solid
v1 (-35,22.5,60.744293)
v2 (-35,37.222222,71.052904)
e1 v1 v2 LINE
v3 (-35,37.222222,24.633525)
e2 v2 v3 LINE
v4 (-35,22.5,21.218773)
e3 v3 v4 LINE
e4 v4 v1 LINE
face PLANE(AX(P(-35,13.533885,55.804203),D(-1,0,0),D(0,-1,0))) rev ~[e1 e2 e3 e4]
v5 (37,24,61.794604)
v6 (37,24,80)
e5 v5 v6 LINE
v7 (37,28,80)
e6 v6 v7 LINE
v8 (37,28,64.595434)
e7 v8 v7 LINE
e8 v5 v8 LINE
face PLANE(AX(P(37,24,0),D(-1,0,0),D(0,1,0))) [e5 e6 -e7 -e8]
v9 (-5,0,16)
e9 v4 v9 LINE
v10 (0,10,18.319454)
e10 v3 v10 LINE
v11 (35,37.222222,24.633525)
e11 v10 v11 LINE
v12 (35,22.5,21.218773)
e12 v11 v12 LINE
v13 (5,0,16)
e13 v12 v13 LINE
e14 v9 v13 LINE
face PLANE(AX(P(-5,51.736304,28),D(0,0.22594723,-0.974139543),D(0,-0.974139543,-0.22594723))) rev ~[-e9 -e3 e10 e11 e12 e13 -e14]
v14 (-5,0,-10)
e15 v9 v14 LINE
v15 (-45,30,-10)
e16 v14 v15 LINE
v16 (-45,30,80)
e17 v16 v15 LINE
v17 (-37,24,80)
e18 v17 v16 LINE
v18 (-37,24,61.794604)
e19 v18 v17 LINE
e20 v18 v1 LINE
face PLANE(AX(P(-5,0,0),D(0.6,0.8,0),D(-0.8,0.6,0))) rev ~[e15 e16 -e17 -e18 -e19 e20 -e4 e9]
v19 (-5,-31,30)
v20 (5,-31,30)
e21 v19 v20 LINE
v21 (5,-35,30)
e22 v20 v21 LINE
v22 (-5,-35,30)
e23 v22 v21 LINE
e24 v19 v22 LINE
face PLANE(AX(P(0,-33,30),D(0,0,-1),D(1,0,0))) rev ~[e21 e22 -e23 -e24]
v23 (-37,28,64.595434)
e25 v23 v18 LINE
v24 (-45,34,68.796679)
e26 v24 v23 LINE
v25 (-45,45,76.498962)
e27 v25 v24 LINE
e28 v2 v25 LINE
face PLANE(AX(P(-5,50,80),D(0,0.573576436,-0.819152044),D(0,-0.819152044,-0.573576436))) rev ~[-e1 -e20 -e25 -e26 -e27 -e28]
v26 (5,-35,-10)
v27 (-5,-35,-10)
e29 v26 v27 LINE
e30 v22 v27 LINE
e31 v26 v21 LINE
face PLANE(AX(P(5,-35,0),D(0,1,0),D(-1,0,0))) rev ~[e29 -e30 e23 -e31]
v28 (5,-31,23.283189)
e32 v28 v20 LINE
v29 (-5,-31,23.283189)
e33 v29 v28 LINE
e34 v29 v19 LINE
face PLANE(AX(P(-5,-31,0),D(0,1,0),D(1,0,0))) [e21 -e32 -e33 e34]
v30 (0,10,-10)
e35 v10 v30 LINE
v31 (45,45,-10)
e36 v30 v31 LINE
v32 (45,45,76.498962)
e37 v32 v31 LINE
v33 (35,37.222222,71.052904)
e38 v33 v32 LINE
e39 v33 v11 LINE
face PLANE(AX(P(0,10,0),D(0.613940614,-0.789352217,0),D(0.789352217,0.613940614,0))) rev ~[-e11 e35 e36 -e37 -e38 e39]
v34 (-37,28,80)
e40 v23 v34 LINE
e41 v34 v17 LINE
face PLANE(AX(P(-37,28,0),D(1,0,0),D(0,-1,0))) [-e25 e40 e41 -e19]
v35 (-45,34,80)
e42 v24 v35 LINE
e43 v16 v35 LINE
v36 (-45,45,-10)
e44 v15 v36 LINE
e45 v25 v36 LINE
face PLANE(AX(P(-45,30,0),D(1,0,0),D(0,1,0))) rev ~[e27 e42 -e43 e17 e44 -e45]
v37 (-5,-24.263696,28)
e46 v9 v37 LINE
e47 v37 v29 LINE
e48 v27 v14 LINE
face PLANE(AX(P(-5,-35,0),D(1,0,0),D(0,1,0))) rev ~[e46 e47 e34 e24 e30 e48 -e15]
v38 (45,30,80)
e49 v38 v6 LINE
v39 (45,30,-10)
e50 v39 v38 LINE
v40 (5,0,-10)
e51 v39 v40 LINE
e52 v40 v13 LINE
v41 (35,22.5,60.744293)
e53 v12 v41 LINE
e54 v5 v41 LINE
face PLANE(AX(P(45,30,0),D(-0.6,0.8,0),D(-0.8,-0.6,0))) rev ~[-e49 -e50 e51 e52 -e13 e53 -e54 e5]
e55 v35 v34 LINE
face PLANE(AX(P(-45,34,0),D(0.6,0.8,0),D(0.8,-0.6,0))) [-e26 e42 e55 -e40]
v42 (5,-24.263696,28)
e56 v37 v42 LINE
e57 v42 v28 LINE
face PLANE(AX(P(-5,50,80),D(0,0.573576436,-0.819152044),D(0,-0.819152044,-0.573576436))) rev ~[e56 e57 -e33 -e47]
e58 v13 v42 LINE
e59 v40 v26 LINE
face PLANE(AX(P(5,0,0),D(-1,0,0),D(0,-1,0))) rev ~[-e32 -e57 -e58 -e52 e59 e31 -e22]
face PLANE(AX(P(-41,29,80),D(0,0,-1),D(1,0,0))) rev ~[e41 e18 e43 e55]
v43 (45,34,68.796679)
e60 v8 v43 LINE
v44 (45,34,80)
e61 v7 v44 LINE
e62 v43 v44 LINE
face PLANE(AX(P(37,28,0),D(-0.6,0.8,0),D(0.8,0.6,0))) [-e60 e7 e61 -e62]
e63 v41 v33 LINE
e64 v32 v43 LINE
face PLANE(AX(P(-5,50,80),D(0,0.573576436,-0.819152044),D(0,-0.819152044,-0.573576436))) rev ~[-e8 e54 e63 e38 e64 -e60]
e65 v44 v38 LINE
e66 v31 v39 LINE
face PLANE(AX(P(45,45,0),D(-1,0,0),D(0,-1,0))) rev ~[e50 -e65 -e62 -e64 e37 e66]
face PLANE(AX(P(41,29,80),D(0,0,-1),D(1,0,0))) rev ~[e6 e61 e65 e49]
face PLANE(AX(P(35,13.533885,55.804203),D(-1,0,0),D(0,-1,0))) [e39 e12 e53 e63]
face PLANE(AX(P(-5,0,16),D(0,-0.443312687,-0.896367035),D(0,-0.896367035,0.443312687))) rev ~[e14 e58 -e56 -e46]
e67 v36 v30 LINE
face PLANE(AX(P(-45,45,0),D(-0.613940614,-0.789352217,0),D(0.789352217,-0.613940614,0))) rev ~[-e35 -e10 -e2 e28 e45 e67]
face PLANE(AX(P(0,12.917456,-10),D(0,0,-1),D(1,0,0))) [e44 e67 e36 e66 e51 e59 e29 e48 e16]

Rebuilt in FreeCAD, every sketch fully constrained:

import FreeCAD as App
import Part
import Sketcher

V = App.Vector
Q = App.Units.Quantity

doc = App.newDocument("Part")
params = doc.addObject("Spreadsheet::Sheet", "Params")
for row, (alias, value) in enumerate([
    ("sketch1_width", "10 mm"),
    ("sketch1_height", "35 mm"),
    ("sketch1_height2", "15 mm"),
    ("sketch1_length", "50 mm"),
    ("pad1_length", "80 mm"),
    ("sketch2_width", "85 mm"),
    ("sketch3_width", "76 mm"),
    ("sketch3_height", "60 mm"),
    ("pocket2_length", "40 mm"),
    ("pocket2_length2", "30 mm"),
    ("sketch4_width", "10 mm"),
    ("sketch4_height", "4 mm"),
    ("pad2_length", "30 mm"),
    ("sketch5_height", "4 mm"),
    ("sketch5_length", "10 mm"),
    ("pad3_length", "80 mm"),
    ("sketch6_width", "10 mm"),
    ("sketch6_height", "35 mm"),
    ("sketch6_height2", "15 mm"),
    ("sketch6_length", "50 mm"),
    ("pad4_length", "10 mm"),
], start=1):
    params.set(f"A{row}", alias)
    params.set(f"B{row}", "=" + value)
    params.setAlias(f"B{row}", alias)

body = doc.addObject("PartDesign::Body", "Body")

# Sketch on XY plane
sketch1 = doc.addObject("Sketcher::SketchObject", "Sketch")
body.addObject(sketch1)
sketch1.AttachmentSupport = (doc.XY_Plane, [""])
sketch1.MapMode = "FlatFace"
sketch1.addGeometry([
    Part.LineSegment(V(-5, 0, 0), V(-5, -35, 0)),  # 0
    Part.LineSegment(V(-5, -35, 0), V(5, -35, 0)),  # 1
    Part.LineSegment(V(5, -35, 0), V(5, 0, 0)),  # 2
    Part.LineSegment(V(5, 0, 0), V(45, 30, 0)),  # 3
    Part.LineSegment(V(45, 30, 0), V(45, 45, 0)),  # 4
    Part.LineSegment(V(45, 45, 0), V(0, 10, 0)),  # 5
    Part.LineSegment(V(0, 10, 0), V(-45, 45, 0)),  # 6
    Part.LineSegment(V(-45, 45, 0), V(-45, 30, 0)),  # 7
    Part.LineSegment(V(-45, 30, 0), V(-5, 0, 0)),  # 8
], False)
sketch1.addConstraint([
    Sketcher.Constraint("Coincident", 0, 2, 1, 1),
    Sketcher.Constraint("Coincident", 1, 2, 2, 1),
    Sketcher.Constraint("Coincident", 2, 2, 3, 1),
    Sketcher.Constraint("Coincident", 3, 2, 4, 1),
    Sketcher.Constraint("Coincident", 4, 2, 5, 1),
    Sketcher.Constraint("Coincident", 5, 2, 6, 1),
    Sketcher.Constraint("Coincident", 6, 2, 7, 1),
    Sketcher.Constraint("Coincident", 7, 2, 8, 1),
    Sketcher.Constraint("Coincident", 8, 2, 0, 1),
    Sketcher.Constraint("Vertical", 0),
    Sketcher.Constraint("Horizontal", 1),
    Sketcher.Constraint("Vertical", 2),
    Sketcher.Constraint("Vertical", 4),
    Sketcher.Constraint("Vertical", 7),
    Sketcher.Constraint("Symmetric", 2, 2, 8, 2, -1, 1),
    Sketcher.Constraint("Symmetric", 4, 2, 6, 2, -2),
    Sketcher.Constraint("PointOnObject", 2, 2, -1),
    Sketcher.Constraint("PointOnObject", 5, 2, -2),
    Sketcher.Constraint("Horizontal", 3, 2, 7, 2),
    Sketcher.Constraint("DistanceX", 1, 1, 1, 2, 10.0),
    Sketcher.Constraint("DistanceY", 0, 2, 0, 1, 35.0),
    Sketcher.Constraint("DistanceY", 4, 1, 4, 2, 15.0),
    Sketcher.Constraint("Distance", 3, 50.0),
    Sketcher.Constraint("DistanceX", -1, 1, 3, 2, 45.0),
    Sketcher.Constraint("DistanceY", -1, 1, 5, 2, 10.0),
])
sketch1.setExpression("Constraints[19]", "Params.sketch1_width")
sketch1.setExpression("Constraints[20]", "Params.sketch1_height")
sketch1.setExpression("Constraints[21]", "Params.sketch1_height2")
sketch1.setExpression("Constraints[22]", "Params.sketch1_length")
pad1 = doc.addObject("PartDesign::Pad", "Pad")
body.addObject(pad1)
pad1.Profile = sketch1
pad1.setExpression("Length", "Params.pad1_length")

# Sketch on YZ plane
sketch2 = doc.addObject("Sketcher::SketchObject", "Sketch001")
body.addObject(sketch2)
sketch2.AttachmentSupport = (doc.YZ_Plane, [""])
sketch2.MapMode = "FlatFace"
sketch2.AttachmentOffset = App.Placement(V(0, 0, -5), App.Rotation())
sketch2.addGeometry([
    Part.LineSegment(V(-35, 20, 0), V(-35, 80, 0)),
    Part.LineSegment(V(-35, 80, 0), V(50, 80, 0)),
    Part.LineSegment(V(50, 80, 0), V(-35, 20, 0)),
], False)
sketch2.addConstraint([
    Sketcher.Constraint("Coincident", 0, 2, 1, 1),
    Sketcher.Constraint("Coincident", 1, 2, 2, 1),
    Sketcher.Constraint("Coincident", 2, 2, 0, 1),
    Sketcher.Constraint("Vertical", 0),
    Sketcher.Constraint("Horizontal", 1),
    Sketcher.Constraint("DistanceX", 1, 1, 1, 2, 85.0),
    Sketcher.Constraint("Angle", 2, Q("-145 deg")),
    Sketcher.Constraint("DistanceX", 0, 2, -1, 1, 35.0),
    Sketcher.Constraint("DistanceY", -1, 1, 0, 2, 80.0),
])
sketch2.setExpression("Constraints[5]", "Params.sketch2_width")
pocket1 = doc.addObject("PartDesign::Pocket", "Pocket")
body.addObject(pocket1)
pocket1.Profile = sketch2
pocket1.Type = "ThroughAll"
pocket1.Midplane = True

# Sketch on YZ plane
sketch3 = doc.addObject("Sketcher::SketchObject", "Sketch002")
body.addObject(sketch3)
sketch3.AttachmentSupport = (doc.YZ_Plane, [""])
sketch3.MapMode = "FlatFace"
sketch3.AttachmentOffset = App.Placement(V(0, 0, -5), App.Rotation())
sketch3.addGeometry([
    Part.LineSegment(V(0, 16, 0), V(-24, 28, 0)),  # 0
    Part.LineSegment(V(-24, 28, 0), V(-24, 88, 0)),  # 1
    Part.LineSegment(V(-24, 88, 0), V(52, 88, 0)),  # 2
    Part.LineSegment(V(52, 88, 0), V(52, 28, 0)),  # 3
    Part.LineSegment(V(52, 28, 0), V(0, 16, 0)),  # 4
], False)
sketch3.addConstraint([
    Sketcher.Constraint("Coincident", 0, 2, 1, 1),
    Sketcher.Constraint("Coincident", 1, 2, 2, 1),
    Sketcher.Constraint("Coincident", 2, 2, 3, 1),
    Sketcher.Constraint("Coincident", 3, 2, 4, 1),
    Sketcher.Constraint("Coincident", 4, 2, 0, 1),
    Sketcher.Constraint("Vertical", 1),
    Sketcher.Constraint("Horizontal", 2),
    Sketcher.Constraint("Vertical", 3),
    Sketcher.Constraint("PointOnObject", 4, 2, -2),
    Sketcher.Constraint("Horizontal", 0, 2, 3, 2),
    Sketcher.Constraint("DistanceX", 2, 1, 2, 2, 76.0),
    Sketcher.Constraint("DistanceY", 1, 1, 1, 2, 60.0),
    Sketcher.Constraint("DistanceY", -1, 1, 0, 2, 28.0),
    Sketcher.Constraint("DistanceY", -1, 1, 4, 2, 16.0),
    Sketcher.Constraint("Distance", 0, 27.06893),
])
sketch3.setExpression("Constraints[10]", "Params.sketch3_width")
sketch3.setExpression("Constraints[11]", "Params.sketch3_height")
pocket2 = doc.addObject("PartDesign::Pocket", "Pocket001")
body.addObject(pocket2)
pocket2.Profile = sketch3
pocket2.Type = "TwoLengths"
pocket2.setExpression("Length", "Params.pocket2_length")
pocket2.setExpression("Length2", "Params.pocket2_length2")
pocket2.Reversed = True

# Sketch on XY plane
sketch4 = doc.addObject("Sketcher::SketchObject", "Sketch003")
body.addObject(sketch4)
sketch4.AttachmentSupport = (doc.XY_Plane, [""])
sketch4.MapMode = "FlatFace"
sketch4.addGeometry([
    Part.LineSegment(V(-5, -35, 0), V(-5, -31, 0)),
    Part.LineSegment(V(-5, -31, 0), V(5, -31, 0)),
    Part.LineSegment(V(5, -31, 0), V(5, -35, 0)),
    Part.LineSegment(V(5, -35, 0), V(-5, -35, 0)),
], False)
sketch4.addConstraint([
    Sketcher.Constraint("Coincident", 0, 2, 1, 1),
    Sketcher.Constraint("Coincident", 1, 2, 2, 1),
    Sketcher.Constraint("Coincident", 2, 2, 3, 1),
    Sketcher.Constraint("Coincident", 3, 2, 0, 1),
    Sketcher.Constraint("Vertical", 0),
    Sketcher.Constraint("Horizontal", 1),
    Sketcher.Constraint("Vertical", 2),
    Sketcher.Constraint("Horizontal", 3),
    Sketcher.Constraint("DistanceX", 1, 1, 1, 2, 10.0),
    Sketcher.Constraint("DistanceY", 0, 1, 0, 2, 4.0),
    Sketcher.Constraint("DistanceX", 0, 2, -1, 1, 5.0),
    Sketcher.Constraint("DistanceY", 0, 2, -1, 1, 31.0),
])
sketch4.setExpression("Constraints[8]", "Params.sketch4_width")
sketch4.setExpression("Constraints[9]", "Params.sketch4_height")
pad2 = doc.addObject("PartDesign::Pad", "Pad001")
body.addObject(pad2)
pad2.Profile = sketch4
pad2.setExpression("Length", "Params.pad2_length")

# Sketch on XY plane
sketch5 = doc.addObject("Sketcher::SketchObject", "Sketch004")
body.addObject(sketch5)
sketch5.AttachmentSupport = (doc.XY_Plane, [""])
sketch5.MapMode = "FlatFace"
sketch5.addGeometry([
    Part.LineSegment(V(-37, 24, 0), V(-45, 30, 0)),  # 0
    Part.LineSegment(V(-45, 30, 0), V(-45, 34, 0)),  # 1
    Part.LineSegment(V(-45, 34, 0), V(-37, 28, 0)),  # 2
    Part.LineSegment(V(-37, 28, 0), V(-37, 24, 0)),  # 3
    Part.LineSegment(V(45, 34, 0), V(45, 30, 0)),  # 4
    Part.LineSegment(V(45, 30, 0), V(37, 24, 0)),  # 5
    Part.LineSegment(V(37, 24, 0), V(37, 28, 0)),  # 6
    Part.LineSegment(V(37, 28, 0), V(45, 34, 0)),  # 7
], False)
sketch5.addConstraint([
    Sketcher.Constraint("Coincident", 0, 2, 1, 1),
    Sketcher.Constraint("Coincident", 1, 2, 2, 1),
    Sketcher.Constraint("Coincident", 2, 2, 3, 1),
    Sketcher.Constraint("Coincident", 3, 2, 0, 1),
    Sketcher.Constraint("Coincident", 4, 2, 5, 1),
    Sketcher.Constraint("Coincident", 5, 2, 6, 1),
    Sketcher.Constraint("Coincident", 6, 2, 7, 1),
    Sketcher.Constraint("Coincident", 7, 2, 4, 1),
    Sketcher.Constraint("Vertical", 1),
    Sketcher.Constraint("Vertical", 3),
    Sketcher.Constraint("Vertical", 4),
    Sketcher.Constraint("Vertical", 6),
    Sketcher.Constraint("Symmetric", 0, 2, 4, 2, -2),
    Sketcher.Constraint("Symmetric", 3, 2, 5, 2, -2),
    Sketcher.Constraint("Parallel", 0, 2),
    Sketcher.Constraint("Parallel", 5, 7),
    Sketcher.Constraint("Horizontal", 2, 2, 6, 2),
    Sketcher.Constraint("DistanceY", 1, 1, 1, 2, 4.0),
    Sketcher.Constraint("Distance", 0, 10.0),
    Sketcher.Constraint("DistanceX", 0, 2, -1, 1, 45.0),
    Sketcher.Constraint("DistanceY", -1, 1, 0, 2, 30.0),
    Sketcher.Constraint("DistanceX", 2, 2, -1, 1, 37.0),
])
sketch5.setExpression("Constraints[17]", "Params.sketch5_height")
sketch5.setExpression("Constraints[18]", "Params.sketch5_length")
pad3 = doc.addObject("PartDesign::Pad", "Pad002")
body.addObject(pad3)
pad3.Profile = sketch5
pad3.setExpression("Length", "Params.pad3_length")

# Sketch on XY plane
sketch6 = doc.addObject("Sketcher::SketchObject", "Sketch005")
body.addObject(sketch6)
sketch6.AttachmentSupport = (doc.XY_Plane, [""])
sketch6.MapMode = "FlatFace"
sketch6.addGeometry([
    Part.LineSegment(V(5, -35, 0), V(-5, -35, 0)),  # 0
    Part.LineSegment(V(-5, -35, 0), V(-5, 0, 0)),  # 1
    Part.LineSegment(V(-5, 0, 0), V(-45, 30, 0)),  # 2
    Part.LineSegment(V(-45, 30, 0), V(-45, 45, 0)),  # 3
    Part.LineSegment(V(-45, 45, 0), V(0, 10, 0)),  # 4
    Part.LineSegment(V(0, 10, 0), V(45, 45, 0)),  # 5
    Part.LineSegment(V(45, 45, 0), V(45, 30, 0)),  # 6
    Part.LineSegment(V(45, 30, 0), V(5, 0, 0)),  # 7
    Part.LineSegment(V(5, 0, 0), V(5, -35, 0)),  # 8
], False)
sketch6.addConstraint([
    Sketcher.Constraint("Coincident", 0, 2, 1, 1),
    Sketcher.Constraint("Coincident", 1, 2, 2, 1),
    Sketcher.Constraint("Coincident", 2, 2, 3, 1),
    Sketcher.Constraint("Coincident", 3, 2, 4, 1),
    Sketcher.Constraint("Coincident", 4, 2, 5, 1),
    Sketcher.Constraint("Coincident", 5, 2, 6, 1),
    Sketcher.Constraint("Coincident", 6, 2, 7, 1),
    Sketcher.Constraint("Coincident", 7, 2, 8, 1),
    Sketcher.Constraint("Coincident", 8, 2, 0, 1),
    Sketcher.Constraint("Horizontal", 0),
    Sketcher.Constraint("Vertical", 1),
    Sketcher.Constraint("Vertical", 3),
    Sketcher.Constraint("Vertical", 6),
    Sketcher.Constraint("Vertical", 8),
    Sketcher.Constraint("Symmetric", 1, 2, 7, 2, -1, 1),
    Sketcher.Constraint("Symmetric", 3, 2, 5, 2, -2),
    Sketcher.Constraint("PointOnObject", 1, 2, -1),
    Sketcher.Constraint("PointOnObject", 4, 2, -2),
    Sketcher.Constraint("Horizontal", 2, 2, 6, 2),
    Sketcher.Constraint("DistanceX", 0, 2, 0, 1, 10.0),
    Sketcher.Constraint("DistanceY", 1, 1, 1, 2, 35.0),
    Sketcher.Constraint("DistanceY", 3, 1, 3, 2, 15.0),
    Sketcher.Constraint("Distance", 2, 50.0),
    Sketcher.Constraint("DistanceX", 2, 2, -1, 1, 45.0),
    Sketcher.Constraint("DistanceY", -1, 1, 4, 2, 10.0),
])
sketch6.setExpression("Constraints[19]", "Params.sketch6_width")
sketch6.setExpression("Constraints[20]", "Params.sketch6_height")
sketch6.setExpression("Constraints[21]", "Params.sketch6_height2")
sketch6.setExpression("Constraints[22]", "Params.sketch6_length")
pad4 = doc.addObject("PartDesign::Pad", "Pad003")
body.addObject(pad4)
pad4.Profile = sketch6
pad4.setExpression("Length", "Params.pad4_length")
pad4.Reversed = True

doc.recompute()
